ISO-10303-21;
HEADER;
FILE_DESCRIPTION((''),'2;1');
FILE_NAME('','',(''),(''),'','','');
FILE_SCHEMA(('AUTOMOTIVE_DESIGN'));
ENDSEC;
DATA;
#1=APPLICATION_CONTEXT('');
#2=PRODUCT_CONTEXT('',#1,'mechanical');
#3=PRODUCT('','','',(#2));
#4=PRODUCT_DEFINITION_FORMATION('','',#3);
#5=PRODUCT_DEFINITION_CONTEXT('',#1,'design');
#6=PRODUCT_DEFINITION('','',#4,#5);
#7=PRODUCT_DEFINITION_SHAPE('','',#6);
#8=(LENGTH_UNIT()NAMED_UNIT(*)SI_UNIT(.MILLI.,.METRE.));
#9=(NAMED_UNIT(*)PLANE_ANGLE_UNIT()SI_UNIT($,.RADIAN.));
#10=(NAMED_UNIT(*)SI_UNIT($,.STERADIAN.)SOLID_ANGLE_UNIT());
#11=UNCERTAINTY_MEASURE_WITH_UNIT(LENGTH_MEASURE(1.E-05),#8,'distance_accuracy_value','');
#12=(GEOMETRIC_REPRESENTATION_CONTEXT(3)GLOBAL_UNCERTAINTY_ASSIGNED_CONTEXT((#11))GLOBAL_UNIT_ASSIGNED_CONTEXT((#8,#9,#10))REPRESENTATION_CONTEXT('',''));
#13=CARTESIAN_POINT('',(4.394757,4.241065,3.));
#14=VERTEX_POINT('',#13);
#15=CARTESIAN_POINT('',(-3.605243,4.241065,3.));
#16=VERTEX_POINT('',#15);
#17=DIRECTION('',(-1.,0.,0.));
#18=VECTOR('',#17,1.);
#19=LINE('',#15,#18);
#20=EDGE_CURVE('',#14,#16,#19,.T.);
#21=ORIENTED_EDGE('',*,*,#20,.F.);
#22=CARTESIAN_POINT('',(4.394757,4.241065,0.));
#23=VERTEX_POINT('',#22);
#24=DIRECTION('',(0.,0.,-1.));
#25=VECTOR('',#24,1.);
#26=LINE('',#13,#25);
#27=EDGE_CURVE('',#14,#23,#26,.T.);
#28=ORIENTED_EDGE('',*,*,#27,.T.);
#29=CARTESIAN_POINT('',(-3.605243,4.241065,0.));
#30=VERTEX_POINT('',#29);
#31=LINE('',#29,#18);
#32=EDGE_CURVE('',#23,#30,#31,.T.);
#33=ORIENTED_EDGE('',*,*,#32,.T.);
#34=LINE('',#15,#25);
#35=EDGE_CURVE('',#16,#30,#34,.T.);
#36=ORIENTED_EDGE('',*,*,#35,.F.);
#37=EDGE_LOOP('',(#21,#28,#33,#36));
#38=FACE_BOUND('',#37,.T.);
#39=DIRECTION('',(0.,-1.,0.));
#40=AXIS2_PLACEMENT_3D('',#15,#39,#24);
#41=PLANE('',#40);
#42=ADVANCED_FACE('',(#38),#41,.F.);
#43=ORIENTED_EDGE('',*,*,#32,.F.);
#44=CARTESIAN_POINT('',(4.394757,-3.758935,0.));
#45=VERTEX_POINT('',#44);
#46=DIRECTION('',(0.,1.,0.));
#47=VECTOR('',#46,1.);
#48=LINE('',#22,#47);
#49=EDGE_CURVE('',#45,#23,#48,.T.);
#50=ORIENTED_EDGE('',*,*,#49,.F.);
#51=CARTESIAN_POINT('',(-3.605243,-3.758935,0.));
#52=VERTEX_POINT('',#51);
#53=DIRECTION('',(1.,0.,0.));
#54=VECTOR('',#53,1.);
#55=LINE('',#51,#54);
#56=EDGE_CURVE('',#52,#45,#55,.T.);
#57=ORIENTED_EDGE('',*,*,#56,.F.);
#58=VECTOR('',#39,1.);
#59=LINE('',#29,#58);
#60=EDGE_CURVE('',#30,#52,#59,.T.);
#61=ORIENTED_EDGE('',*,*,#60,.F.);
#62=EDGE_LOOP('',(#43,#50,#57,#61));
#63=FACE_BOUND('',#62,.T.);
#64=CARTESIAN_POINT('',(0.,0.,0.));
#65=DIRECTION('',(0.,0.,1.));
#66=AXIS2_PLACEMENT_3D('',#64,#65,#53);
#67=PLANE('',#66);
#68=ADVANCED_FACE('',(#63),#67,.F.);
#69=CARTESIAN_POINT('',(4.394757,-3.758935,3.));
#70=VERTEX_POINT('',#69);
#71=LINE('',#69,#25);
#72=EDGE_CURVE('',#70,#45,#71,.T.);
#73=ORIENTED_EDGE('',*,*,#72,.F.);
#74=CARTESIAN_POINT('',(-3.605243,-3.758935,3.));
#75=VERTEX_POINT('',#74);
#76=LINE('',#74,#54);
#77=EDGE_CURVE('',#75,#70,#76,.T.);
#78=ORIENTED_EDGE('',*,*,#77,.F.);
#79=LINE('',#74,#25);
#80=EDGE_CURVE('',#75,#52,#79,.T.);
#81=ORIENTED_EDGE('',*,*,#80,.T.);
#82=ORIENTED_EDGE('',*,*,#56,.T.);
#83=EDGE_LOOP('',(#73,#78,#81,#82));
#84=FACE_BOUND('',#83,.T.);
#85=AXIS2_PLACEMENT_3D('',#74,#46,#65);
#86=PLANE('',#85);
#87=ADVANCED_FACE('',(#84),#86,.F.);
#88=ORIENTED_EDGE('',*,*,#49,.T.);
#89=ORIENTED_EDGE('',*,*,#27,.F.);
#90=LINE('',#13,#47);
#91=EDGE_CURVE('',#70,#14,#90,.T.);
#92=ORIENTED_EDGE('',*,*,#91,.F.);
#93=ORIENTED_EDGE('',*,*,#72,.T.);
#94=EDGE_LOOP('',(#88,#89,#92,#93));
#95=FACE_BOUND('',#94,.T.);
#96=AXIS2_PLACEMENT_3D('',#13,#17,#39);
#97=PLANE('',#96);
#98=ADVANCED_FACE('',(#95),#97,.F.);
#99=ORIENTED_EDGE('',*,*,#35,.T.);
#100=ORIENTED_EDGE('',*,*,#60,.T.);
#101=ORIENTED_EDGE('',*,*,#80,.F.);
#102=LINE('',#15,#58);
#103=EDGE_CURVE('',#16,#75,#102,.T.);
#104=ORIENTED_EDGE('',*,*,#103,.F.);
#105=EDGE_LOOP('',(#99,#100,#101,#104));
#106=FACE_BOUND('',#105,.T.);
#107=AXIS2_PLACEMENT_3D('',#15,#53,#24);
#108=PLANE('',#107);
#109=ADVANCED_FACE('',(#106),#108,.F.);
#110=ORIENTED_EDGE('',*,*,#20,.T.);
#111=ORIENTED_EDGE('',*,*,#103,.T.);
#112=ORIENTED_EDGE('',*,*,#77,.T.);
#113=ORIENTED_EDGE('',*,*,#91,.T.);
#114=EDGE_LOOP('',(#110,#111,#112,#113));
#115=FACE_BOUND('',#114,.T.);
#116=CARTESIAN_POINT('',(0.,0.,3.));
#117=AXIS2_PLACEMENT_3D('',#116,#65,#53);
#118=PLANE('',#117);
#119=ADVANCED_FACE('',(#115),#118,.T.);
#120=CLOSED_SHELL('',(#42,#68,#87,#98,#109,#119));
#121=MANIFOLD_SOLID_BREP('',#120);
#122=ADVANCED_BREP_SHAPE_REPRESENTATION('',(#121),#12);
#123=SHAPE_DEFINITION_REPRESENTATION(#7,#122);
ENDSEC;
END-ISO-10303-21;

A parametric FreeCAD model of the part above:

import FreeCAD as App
import Part
import Sketcher

doc = App.newDocument("Part")
body = doc.addObject("PartDesign::Body", "Body")

# Sketch on XY plane
sketch1 = doc.addObject("Sketcher::SketchObject", "Sketch")
body.addObject(sketch1)
sketch1.AttachmentSupport = (doc.XY_Plane, [""])
sketch1.MapMode = "FlatFace"
sketch1.addGeometry([
    Part.LineSegment(App.Vector(-3.605243, 4.241065, 0), App.Vector(-3.605243, -3.758935, 0)),
    Part.LineSegment(App.Vector(-3.605243, -3.758935, 0), App.Vector(4.394757, -3.758935, 0)),
    Part.LineSegment(App.Vector(4.394757, -3.758935, 0), App.Vector(4.394757, 4.241065, 0)),
    Part.LineSegment(App.Vector(4.394757, 4.241065, 0), App.Vector(-3.605243, 4.241065, 0)),
], False)
sketch1.addConstraint([
    Sketcher.Constraint("Coincident", 0, 2, 1, 1),
    Sketcher.Constraint("Coincident", 1, 2, 2, 1),
    Sketcher.Constraint("Coincident", 2, 2, 3, 1),
    Sketcher.Constraint("Coincident", 3, 2, 0, 1),
    Sketcher.Constraint("Vertical", 0),
    Sketcher.Constraint("Horizontal", 1),
    Sketcher.Constraint("Vertical", 2),
    Sketcher.Constraint("Horizontal", 3),
    Sketcher.Constraint("Equal", 3, 0),
    Sketcher.Constraint("DistanceX", 1, 1, 1, 2, 8.0),
    Sketcher.Constraint("DistanceX", 0, 2, -1, 1, 3.605243),
    Sketcher.Constraint("DistanceY", 0, 2, -1, 1, 3.758935),
])
pad1 = doc.addObject("PartDesign::Pad", "Pad")
body.addObject(pad1)
pad1.Profile = sketch1
pad1.Length = 3

doc.recompute()
